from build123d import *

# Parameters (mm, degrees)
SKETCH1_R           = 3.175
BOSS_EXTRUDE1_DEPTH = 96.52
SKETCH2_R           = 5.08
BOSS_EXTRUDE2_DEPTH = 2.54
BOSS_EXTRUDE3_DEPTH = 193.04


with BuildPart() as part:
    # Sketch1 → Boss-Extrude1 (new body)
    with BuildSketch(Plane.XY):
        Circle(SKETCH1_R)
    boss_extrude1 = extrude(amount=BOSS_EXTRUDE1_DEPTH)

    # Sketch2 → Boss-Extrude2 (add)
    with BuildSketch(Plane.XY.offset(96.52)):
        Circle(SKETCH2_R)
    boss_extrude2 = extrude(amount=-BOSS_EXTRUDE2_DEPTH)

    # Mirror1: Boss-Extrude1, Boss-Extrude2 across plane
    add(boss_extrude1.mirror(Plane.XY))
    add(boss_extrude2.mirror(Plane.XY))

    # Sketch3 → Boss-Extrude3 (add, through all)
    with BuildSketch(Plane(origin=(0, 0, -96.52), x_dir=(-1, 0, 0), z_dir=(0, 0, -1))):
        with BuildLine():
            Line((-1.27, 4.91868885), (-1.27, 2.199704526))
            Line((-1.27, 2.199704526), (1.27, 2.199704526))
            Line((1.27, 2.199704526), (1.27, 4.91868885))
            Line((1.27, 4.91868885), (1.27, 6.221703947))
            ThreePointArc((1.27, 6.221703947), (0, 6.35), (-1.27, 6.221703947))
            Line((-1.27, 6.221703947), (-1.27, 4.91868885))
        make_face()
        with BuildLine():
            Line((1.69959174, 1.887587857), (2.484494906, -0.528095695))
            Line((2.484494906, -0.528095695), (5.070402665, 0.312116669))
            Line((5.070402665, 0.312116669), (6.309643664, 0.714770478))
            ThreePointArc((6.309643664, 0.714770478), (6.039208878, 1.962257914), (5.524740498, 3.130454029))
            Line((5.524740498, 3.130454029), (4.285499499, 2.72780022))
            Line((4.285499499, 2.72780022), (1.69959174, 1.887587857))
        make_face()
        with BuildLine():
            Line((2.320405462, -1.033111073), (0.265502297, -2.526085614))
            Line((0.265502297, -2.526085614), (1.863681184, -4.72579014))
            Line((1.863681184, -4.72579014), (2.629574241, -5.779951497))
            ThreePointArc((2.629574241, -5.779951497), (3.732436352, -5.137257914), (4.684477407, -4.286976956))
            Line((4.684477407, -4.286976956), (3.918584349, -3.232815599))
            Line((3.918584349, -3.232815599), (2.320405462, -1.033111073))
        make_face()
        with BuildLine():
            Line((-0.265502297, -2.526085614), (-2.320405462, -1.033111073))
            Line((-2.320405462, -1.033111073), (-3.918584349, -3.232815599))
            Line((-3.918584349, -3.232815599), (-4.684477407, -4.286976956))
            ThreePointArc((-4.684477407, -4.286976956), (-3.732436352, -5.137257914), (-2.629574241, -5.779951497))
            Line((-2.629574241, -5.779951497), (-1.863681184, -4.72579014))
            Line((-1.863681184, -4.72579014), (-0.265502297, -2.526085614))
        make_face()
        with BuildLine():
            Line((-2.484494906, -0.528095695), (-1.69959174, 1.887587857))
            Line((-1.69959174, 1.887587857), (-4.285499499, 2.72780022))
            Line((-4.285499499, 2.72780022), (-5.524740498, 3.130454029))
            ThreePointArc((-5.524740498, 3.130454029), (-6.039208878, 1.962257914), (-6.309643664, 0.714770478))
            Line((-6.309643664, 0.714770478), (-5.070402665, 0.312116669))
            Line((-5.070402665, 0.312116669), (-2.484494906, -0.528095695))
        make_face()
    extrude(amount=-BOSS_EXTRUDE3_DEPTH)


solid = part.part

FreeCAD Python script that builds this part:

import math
import FreeCAD as App
import Part
import Sketcher
Q = App.Units.Quantity

doc = App.newDocument("Part")
body = doc.addObject("PartDesign::Body", "Body")

sketch1 = body.newObject("Sketcher::SketchObject", "Sketch")
sketch1.AttachmentSupport = (doc.getObject("XY_Plane"), [""])
sketch1.MapMode = "FlatFace"
sketch1.addGeometry(Part.Circle(App.Vector(0, 0, 0), App.Vector(0, 0, 1), 3.2), False)
sketch1.addConstraint([
    Sketcher.Constraint("Coincident", 0, 3, -1, 1),
    Sketcher.Constraint("Diameter", 0, Q("0.25 in")),
])
pad1 = body.newObject("PartDesign::Pad", "Pad")
pad1.Profile = sketch1
pad1.Length = Q("3.8 in")

sketch2 = body.newObject("Sketcher::SketchObject", "Sketch001")
sketch2.AttachmentSupport = (doc.getObject("XY_Plane"), [""])
sketch2.MapMode = "FlatFace"
sketch2.AttachmentOffset = App.Placement(App.Vector(0, 0, 3.8 * 25.4), App.Rotation())
sketch2.addGeometry(Part.Circle(App.Vector(0, 0, 0), App.Vector(0, 0, 1), 5), False)
sketch2.addConstraint([
    Sketcher.Constraint("Coincident", 0, 3, -1, 1),
    Sketcher.Constraint("Diameter", 0, Q("0.4 in")),
])
pad2 = body.newObject("PartDesign::Pad", "Pad001")
pad2.Profile = sketch2
pad2.Length = Q("0.1 in")
pad2.Reversed = True
doc.recompute()

mirrored = body.newObject("PartDesign::Mirrored", "Mirrored")
mirrored.Originals = [pad1, pad2]
mirrored.MirrorPlane = (doc.getObject("XY_Plane"), [""])
body.Tip = mirrored

sketch3 = body.newObject("Sketcher::SketchObject", "Sketch002")
sketch3.AttachmentSupport = (doc.getObject("XY_Plane"), [""])
sketch3.MapMode = "FlatFace"
sketch3.AttachmentOffset = App.Placement(App.Vector(0, 0, -3.8 * 25.4), App.Rotation())
sketch3.addGeometry([
    Part.LineSegment(App.Vector(1.3, 2.2, 0), App.Vector(-1.3, 2.2, 0)),
    Part.LineSegment(App.Vector(-1.3, 2.2, 0), App.Vector(-1.3, 6.2, 0)),
    Part.ArcOfCircle(Part.Circle(App.Vector(0, 0, 0), App.Vector(0, 0, 1), 6.4), math.radians(78), math.radians(102)),
    Part.LineSegment(App.Vector(1.3, 6.2, 0), App.Vector(1.3, 2.2, 0)),
    Part.LineSegment(App.Vector(-1.7, 1.9, 0), App.Vector(-2.5, -0.5, 0)),
    Part.LineSegment(App.Vector(-2.5, -0.5, 0), App.Vector(-5.1, 0.3, 0)),
    Part.LineSegment(App.Vector(-5.1, 0.3, 0), App.Vector(-6.3, 0.7, 0)),
    Part.ArcOfCircle(Part.Circle(App.Vector(0, 0, 0), App.Vector(0, 0, 1), 6.4), math.radians(150), math.radians(174)),
    Part.LineSegment(App.Vector(-5.5, 3.1, 0), App.Vector(-4.3, 2.7, 0)),
    Part.LineSegment(App.Vector(-4.3, 2.7, 0), App.Vector(-1.7, 1.9, 0)),
    Part.LineSegment(App.Vector(-2.3, -1, 0), App.Vector(-0.3, -2.5, 0)),
    Part.LineSegment(App.Vector(-0.3, -2.5, 0), App.Vector(-1.9, -4.7, 0)),
    Part.LineSegment(App.Vector(-1.9, -4.7, 0), App.Vector(-2.6, -5.8, 0)),
    Part.ArcOfCircle(Part.Circle(App.Vector(0, 0, 0), App.Vector(0, 0, 1), 6.4), math.radians(-138), math.radians(-114)),
    Part.LineSegment(App.Vector(-4.7, -4.3, 0), App.Vector(-3.9, -3.2, 0)),
    Part.LineSegment(App.Vector(-3.9, -3.2, 0), App.Vector(-2.3, -1, 0)),
    Part.LineSegment(App.Vector(0.3, -2.5, 0), App.Vector(2.3, -1, 0)),
    Part.LineSegment(App.Vector(2.3, -1, 0), App.Vector(3.9, -3.2, 0)),
    Part.LineSegment(App.Vector(3.9, -3.2, 0), App.Vector(4.7, -4.3, 0)),
    Part.ArcOfCircle(Part.Circle(App.Vector(0, 0, 0), App.Vector(0, 0, 1), 6.4), math.radians(-66), math.radians(-42)),
    Part.LineSegment(App.Vector(2.6, -5.8, 0), App.Vector(1.9, -4.7, 0)),
    Part.LineSegment(App.Vector(1.9, -4.7, 0), App.Vector(0.3, -2.5, 0)),
    Part.LineSegment(App.Vector(2.5, -0.5, 0), App.Vector(1.7, 1.9, 0)),
    Part.LineSegment(App.Vector(1.7, 1.9, 0), App.Vector(4.3, 2.7, 0)),
    Part.LineSegment(App.Vector(4.3, 2.7, 0), App.Vector(5.5, 3.1, 0)),
    Part.ArcOfCircle(Part.Circle(App.Vector(0, 0, 0), App.Vector(0, 0, 1), 6.4), math.radians(6), math.radians(30)),
    Part.LineSegment(App.Vector(6.3, 0.7, 0), App.Vector(5.1, 0.3, 0)),
    Part.LineSegment(App.Vector(5.1, 0.3, 0), App.Vector(2.5, -0.5, 0)),
], False)
sketch3.addConstraint([
    Sketcher.Constraint("Coincident", 0, 2, 1, 1),
    Sketcher.Constraint("Coincident", 1, 2, 2, 2),
    Sketcher.Constraint("Coincident", 2, 1, 3, 1),
    Sketcher.Constraint("Coincident", 3, 2, 0, 1),
    Sketcher.Constraint("Coincident", 4, 2, 5, 1),
    Sketcher.Constraint("Coincident", 5, 2, 6, 1),
    Sketcher.Constraint("Coincident", 6, 2, 7, 2),
    Sketcher.Constraint("Coincident", 7, 1, 8, 1),
    Sketcher.Constraint("Coincident", 8, 2, 9, 1),
    Sketcher.Constraint("Coincident", 9, 2, 4, 1),
    Sketcher.Constraint("Coincident", 10, 2, 11, 1),
    Sketcher.Constraint("Coincident", 11, 2, 12, 1),
    Sketcher.Constraint("Coincident", 12, 2, 13, 2),
    Sketcher.Constraint("Coincident", 13, 1, 14, 1),
    Sketcher.Constraint("Coincident", 14, 2, 15, 1),
    Sketcher.Constraint("Coincident", 15, 2, 10, 1),
    Sketcher.Constraint("Coincident", 16, 2, 17, 1),
    Sketcher.Constraint("Coincident", 17, 2, 18, 1),
    Sketcher.Constraint("Coincident", 18, 2, 19, 2),
    Sketcher.Constraint("Coincident", 19, 1, 20, 1),
    Sketcher.Constraint("Coincident", 20, 2, 21, 1),
    Sketcher.Constraint("Coincident", 21, 2, 16, 1),
    Sketcher.Constraint("Coincident", 22, 2, 23, 1),
    Sketcher.Constraint("Coincident", 23, 2, 24, 1),
    Sketcher.Constraint("Coincident", 24, 2, 25, 2),
    Sketcher.Constraint("Coincident", 25, 1, 26, 1),
    Sketcher.Constraint("Coincident", 26, 2, 27, 1),
    Sketcher.Constraint("Coincident", 27, 2, 22, 1),
    Sketcher.Constraint("Horizontal", 0),
    Sketcher.Constraint("Vertical", 1),
    Sketcher.Constraint("Vertical", 3),
    Sketcher.Constraint("Coincident", 2, 3, -1, 1),
    Sketcher.Constraint("Coincident", 7, 3, -1, 1),
    Sketcher.Constraint("Coincident", 13, 3, -1, 1),
    Sketcher.Constraint("Coincident", 19, 3, -1, 1),
    Sketcher.Constraint("Coincident", 25, 3, -1, 1),
    Sketcher.Constraint("Equal", 2, 7),
    Sketcher.Constraint("Equal", 7, 13),
    Sketcher.Constraint("Equal", 13, 19),
    Sketcher.Constraint("Equal", 19, 25),
    Sketcher.Constraint("Symmetric", 15, 2, 16, 2, -2),
    Sketcher.Constraint("Symmetric", 14, 2, 17, 2, -2),
    Sketcher.Constraint("Symmetric", 11, 2, 20, 2, -2),
    Sketcher.Constraint("Symmetric", 10, 2, 21, 2, -2),
    Sketcher.Constraint("Symmetric", 9, 2, 22, 2, -2),
    Sketcher.Constraint("Symmetric", 8, 2, 23, 2, -2),
    Sketcher.Constraint("Symmetric", 5, 2, 26, 2, -2),
    Sketcher.Constraint("Symmetric", 4, 2, 27, 2, -2),
    Sketcher.Constraint("Perpendicular", 4, 5),
    Sketcher.Constraint("Parallel", 5, 6),
    Sketcher.Constraint("Parallel", 6, 8),
    Sketcher.Constraint("Parallel", 8, 9),
    Sketcher.Constraint("Perpendicular", 10, 11),
    Sketcher.Constraint("Parallel", 11, 12),
    Sketcher.Constraint("Parallel", 12, 14),
    Sketcher.Constraint("Parallel", 14, 15),
    Sketcher.Constraint("Parallel", 17, 18),
    Sketcher.Constraint("Parallel", 18, 20),
    Sketcher.Constraint("Parallel", 23, 24),
    Sketcher.Constraint("Parallel", 24, 26),
    Sketcher.Constraint("Horizontal", 1, 2, 2, 1),
    Sketcher.Constraint("Equal", 6, 8),
    Sketcher.Constraint("Equal", 5, 9),
    Sketcher.Constraint("Equal", 4, 10),
    Sketcher.Constraint("Equal", 9, 11),
    Sketcher.Constraint("Equal", 8, 12),
    Sketcher.Constraint("Equal", 12, 14),
    Sketcher.Constraint("Equal", 11, 15),
    Sketcher.Constraint("Radius", 2, Q("0.25 in")),
    Sketcher.Constraint("DistanceX", 0, 2, 0, 1, Q("0.1 in")),
    Sketcher.Constraint("Angle", 4, Q("-108 deg")),
    Sketcher.Constraint("Angle", 10, Q("-36 deg")),
    Sketcher.Constraint("Distance", 4, Q("0.1 in")),
    Sketcher.Constraint("Distance", 6, Q("0.0512998 in")),
    Sketcher.Constraint("DistanceY", 1, 1, 1, 2, 4.021999),
    Sketcher.Constraint("DistanceX", 9, 2, -1, 1, 1.699592),
])
pad3 = body.newObject("PartDesign::Pad", "Pad002")
pad3.Profile = sketch3
pad3.Type = "UpToLast"

doc.recompute()
